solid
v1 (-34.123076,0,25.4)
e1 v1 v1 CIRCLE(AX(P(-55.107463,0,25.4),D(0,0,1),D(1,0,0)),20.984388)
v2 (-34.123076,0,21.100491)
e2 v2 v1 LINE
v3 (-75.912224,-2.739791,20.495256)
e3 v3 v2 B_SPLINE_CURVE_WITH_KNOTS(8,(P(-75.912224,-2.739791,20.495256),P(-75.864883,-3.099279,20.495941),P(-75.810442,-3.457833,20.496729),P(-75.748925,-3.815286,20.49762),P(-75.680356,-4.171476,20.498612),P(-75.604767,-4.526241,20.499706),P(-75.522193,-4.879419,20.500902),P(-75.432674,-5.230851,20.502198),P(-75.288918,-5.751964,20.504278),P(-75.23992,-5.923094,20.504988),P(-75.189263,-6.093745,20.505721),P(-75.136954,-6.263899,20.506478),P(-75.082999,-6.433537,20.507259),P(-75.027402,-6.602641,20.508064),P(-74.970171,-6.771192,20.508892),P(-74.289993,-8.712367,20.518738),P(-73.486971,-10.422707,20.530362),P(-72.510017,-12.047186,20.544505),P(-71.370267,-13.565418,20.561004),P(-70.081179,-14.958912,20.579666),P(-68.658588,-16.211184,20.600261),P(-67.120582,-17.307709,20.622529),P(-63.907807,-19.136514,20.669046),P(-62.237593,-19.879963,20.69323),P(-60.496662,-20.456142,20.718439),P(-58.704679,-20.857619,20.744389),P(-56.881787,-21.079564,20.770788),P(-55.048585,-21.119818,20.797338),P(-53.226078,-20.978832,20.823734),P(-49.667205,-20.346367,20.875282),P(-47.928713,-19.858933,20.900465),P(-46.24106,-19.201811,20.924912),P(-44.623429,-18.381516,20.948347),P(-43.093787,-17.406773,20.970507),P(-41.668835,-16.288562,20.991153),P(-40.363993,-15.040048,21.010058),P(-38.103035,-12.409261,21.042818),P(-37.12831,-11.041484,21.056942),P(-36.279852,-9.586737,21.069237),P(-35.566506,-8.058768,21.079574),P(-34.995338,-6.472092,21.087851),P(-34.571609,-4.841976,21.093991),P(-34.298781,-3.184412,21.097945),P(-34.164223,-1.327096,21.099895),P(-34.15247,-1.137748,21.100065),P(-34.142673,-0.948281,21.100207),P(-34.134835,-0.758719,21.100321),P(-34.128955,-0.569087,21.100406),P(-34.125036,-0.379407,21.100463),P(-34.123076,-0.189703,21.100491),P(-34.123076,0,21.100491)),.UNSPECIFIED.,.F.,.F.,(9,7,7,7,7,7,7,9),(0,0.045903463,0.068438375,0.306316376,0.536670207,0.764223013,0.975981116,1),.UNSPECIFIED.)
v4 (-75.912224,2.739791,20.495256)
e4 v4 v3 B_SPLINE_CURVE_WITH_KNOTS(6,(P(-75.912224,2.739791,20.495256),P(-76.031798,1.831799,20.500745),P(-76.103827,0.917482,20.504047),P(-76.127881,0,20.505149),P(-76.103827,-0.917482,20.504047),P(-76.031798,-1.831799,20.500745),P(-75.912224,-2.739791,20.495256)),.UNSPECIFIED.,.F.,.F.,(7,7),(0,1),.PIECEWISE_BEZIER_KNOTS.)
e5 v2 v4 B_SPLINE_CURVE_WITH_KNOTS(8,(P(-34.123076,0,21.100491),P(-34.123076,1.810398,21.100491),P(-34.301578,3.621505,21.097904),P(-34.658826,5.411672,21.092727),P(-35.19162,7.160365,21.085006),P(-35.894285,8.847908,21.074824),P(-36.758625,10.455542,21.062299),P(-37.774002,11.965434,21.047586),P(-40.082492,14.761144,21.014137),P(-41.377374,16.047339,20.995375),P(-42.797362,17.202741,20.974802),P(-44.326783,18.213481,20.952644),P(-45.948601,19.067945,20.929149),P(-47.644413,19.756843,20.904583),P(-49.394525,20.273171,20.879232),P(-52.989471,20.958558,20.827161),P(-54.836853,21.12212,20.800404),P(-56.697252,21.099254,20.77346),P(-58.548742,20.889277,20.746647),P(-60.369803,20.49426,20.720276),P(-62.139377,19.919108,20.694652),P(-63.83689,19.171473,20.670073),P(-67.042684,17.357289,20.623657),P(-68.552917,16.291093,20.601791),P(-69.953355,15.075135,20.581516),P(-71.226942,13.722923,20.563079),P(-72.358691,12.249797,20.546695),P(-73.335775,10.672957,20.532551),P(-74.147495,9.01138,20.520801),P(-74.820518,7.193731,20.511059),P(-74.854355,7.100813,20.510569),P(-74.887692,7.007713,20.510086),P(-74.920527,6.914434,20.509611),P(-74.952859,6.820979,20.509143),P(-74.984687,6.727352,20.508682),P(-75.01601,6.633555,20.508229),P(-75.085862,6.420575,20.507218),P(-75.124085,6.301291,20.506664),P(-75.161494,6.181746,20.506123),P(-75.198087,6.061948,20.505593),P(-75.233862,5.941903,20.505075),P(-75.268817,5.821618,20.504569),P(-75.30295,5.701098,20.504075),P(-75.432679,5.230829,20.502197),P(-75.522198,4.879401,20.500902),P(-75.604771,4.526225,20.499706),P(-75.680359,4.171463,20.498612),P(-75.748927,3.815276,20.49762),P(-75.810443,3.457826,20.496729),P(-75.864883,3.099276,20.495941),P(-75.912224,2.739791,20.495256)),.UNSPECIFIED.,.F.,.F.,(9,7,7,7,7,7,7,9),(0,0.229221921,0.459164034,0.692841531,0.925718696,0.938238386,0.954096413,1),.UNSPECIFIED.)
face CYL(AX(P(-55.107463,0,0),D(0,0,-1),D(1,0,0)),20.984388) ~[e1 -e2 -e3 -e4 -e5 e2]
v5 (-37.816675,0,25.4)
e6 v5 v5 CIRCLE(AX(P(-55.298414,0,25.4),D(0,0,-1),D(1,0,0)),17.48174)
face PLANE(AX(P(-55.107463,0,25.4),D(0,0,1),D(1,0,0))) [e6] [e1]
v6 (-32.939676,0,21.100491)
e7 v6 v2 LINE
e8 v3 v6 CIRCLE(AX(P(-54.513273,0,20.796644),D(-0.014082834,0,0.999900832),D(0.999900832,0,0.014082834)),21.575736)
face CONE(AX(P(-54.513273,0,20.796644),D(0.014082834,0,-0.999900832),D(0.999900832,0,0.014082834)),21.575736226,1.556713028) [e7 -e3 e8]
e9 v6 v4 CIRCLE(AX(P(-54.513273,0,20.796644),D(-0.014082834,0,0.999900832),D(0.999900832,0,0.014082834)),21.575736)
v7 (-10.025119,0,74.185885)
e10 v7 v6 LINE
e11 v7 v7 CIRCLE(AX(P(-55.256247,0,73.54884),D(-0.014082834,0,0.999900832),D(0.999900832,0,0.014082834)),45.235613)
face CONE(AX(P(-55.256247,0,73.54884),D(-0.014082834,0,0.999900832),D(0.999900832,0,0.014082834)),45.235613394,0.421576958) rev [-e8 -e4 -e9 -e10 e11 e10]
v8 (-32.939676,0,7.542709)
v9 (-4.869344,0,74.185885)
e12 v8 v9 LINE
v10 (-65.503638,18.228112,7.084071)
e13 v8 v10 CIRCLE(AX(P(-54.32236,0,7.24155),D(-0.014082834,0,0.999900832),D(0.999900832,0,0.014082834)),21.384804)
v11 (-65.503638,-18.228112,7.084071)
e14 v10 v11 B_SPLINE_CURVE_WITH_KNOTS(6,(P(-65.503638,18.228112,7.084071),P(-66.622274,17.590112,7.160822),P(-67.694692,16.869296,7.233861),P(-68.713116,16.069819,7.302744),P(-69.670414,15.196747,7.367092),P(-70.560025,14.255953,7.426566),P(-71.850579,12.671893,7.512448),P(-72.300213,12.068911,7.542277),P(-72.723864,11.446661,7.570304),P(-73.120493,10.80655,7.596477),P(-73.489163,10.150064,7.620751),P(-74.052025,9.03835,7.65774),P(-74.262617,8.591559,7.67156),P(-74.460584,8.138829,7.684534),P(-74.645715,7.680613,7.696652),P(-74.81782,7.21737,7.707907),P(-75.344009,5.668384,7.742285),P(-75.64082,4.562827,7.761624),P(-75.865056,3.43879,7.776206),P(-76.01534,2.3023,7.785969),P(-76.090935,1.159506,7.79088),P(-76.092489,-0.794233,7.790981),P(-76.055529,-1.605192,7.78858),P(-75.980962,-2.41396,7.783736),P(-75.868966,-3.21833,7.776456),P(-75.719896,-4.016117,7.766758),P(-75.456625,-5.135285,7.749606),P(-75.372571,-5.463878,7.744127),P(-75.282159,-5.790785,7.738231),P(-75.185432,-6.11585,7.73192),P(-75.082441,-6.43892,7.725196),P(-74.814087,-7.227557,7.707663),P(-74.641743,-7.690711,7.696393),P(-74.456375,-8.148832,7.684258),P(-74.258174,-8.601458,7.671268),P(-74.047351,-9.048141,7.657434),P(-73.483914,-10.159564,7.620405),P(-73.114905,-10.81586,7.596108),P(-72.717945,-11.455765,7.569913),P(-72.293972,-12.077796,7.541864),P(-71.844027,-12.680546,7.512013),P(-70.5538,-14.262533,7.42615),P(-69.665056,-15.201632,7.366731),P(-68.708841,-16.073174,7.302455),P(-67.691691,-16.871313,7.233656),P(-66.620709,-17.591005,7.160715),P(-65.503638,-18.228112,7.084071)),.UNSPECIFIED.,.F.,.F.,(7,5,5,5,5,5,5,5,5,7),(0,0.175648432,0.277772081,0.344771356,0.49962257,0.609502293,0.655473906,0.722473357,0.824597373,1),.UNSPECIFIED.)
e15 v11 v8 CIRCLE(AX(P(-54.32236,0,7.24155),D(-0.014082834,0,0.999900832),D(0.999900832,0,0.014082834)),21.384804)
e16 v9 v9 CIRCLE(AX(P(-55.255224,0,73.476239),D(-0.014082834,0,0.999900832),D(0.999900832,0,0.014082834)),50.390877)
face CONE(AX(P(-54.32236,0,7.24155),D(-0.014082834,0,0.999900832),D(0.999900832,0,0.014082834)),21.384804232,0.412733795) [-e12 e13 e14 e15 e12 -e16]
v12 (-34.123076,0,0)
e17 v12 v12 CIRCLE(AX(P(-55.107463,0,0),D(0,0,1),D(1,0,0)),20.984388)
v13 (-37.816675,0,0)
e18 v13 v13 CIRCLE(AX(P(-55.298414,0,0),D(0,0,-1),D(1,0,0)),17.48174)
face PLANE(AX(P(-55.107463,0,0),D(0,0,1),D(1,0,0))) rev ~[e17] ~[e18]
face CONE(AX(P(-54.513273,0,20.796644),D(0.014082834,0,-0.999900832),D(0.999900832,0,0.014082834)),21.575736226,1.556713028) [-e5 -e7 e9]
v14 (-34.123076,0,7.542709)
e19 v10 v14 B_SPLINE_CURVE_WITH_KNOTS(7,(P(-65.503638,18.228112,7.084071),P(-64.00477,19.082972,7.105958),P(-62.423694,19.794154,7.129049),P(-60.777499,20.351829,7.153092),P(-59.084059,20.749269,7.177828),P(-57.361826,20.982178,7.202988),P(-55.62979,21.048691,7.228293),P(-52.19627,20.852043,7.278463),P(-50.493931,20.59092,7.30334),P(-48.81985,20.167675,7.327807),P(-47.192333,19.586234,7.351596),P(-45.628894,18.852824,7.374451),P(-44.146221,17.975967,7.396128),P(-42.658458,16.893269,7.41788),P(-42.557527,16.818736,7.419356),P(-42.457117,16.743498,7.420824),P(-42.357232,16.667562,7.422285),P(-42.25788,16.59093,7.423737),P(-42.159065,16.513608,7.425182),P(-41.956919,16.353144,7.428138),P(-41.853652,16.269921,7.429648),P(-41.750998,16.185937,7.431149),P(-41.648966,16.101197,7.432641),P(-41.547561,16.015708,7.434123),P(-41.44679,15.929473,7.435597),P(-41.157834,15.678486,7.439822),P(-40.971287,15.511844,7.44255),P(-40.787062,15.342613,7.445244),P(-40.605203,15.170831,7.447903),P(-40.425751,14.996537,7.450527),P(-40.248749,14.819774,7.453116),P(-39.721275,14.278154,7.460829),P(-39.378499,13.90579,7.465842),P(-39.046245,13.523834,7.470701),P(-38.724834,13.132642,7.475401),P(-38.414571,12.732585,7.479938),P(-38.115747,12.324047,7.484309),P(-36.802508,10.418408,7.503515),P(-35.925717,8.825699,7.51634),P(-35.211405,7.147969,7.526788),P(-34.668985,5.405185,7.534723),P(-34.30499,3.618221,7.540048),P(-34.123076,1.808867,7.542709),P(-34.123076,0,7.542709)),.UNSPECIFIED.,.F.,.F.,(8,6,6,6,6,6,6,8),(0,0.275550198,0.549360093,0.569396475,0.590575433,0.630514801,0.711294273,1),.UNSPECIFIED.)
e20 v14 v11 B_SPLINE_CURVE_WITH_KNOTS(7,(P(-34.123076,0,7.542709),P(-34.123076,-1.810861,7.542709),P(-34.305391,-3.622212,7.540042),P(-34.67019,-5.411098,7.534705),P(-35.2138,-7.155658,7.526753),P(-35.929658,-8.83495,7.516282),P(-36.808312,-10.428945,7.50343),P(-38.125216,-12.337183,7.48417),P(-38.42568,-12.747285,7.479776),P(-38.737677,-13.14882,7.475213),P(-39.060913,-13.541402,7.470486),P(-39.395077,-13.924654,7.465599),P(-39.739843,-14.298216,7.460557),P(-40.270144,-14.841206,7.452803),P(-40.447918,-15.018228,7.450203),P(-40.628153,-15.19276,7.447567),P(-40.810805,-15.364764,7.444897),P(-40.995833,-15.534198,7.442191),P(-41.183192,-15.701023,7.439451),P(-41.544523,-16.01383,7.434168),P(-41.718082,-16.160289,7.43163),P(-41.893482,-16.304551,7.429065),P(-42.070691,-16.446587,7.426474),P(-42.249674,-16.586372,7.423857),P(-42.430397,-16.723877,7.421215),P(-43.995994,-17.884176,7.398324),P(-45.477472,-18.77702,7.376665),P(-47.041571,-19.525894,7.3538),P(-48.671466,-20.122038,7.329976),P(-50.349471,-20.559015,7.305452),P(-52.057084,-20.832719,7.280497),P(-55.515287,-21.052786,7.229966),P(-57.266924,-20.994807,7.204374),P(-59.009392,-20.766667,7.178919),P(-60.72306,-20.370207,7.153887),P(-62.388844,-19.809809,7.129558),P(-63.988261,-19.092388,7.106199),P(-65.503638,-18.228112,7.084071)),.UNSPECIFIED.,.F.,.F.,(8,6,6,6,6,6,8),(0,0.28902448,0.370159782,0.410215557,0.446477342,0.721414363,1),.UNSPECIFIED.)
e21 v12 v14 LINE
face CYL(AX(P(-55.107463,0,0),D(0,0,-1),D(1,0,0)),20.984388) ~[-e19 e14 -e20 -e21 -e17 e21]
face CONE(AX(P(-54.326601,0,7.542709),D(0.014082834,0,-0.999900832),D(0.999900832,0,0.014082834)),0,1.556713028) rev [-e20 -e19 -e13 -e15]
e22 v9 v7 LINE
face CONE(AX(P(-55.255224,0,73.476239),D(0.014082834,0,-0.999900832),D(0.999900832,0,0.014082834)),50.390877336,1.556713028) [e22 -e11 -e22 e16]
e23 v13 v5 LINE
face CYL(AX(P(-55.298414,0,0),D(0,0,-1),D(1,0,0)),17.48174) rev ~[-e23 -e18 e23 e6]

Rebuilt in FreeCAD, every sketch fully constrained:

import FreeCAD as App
import Part
import Sketcher

V = App.Vector
Q = App.Units.Quantity


def add_polygon(sketch, points):
    """Adds a closed chain of lines whose ends are joined by coincident constraints."""
    first, n = sketch.GeometryCount, len(points)
    for a, b in zip(points, points[1:] + points[:1]):
        sketch.addGeometry(Part.LineSegment(App.Vector(*a, 0), App.Vector(*b, 0)), False)
    for i in range(n):
        sketch.addConstraint(Sketcher.Constraint("Coincident", first + i, 2, first + (i + 1) % n, 1))

doc = App.newDocument("Part")
body = doc.addObject("PartDesign::Body", "Body")

# Sketch on XZ plane
sketch1 = body.newObject("Sketcher::SketchObject", "Sketch")
sketch1.AttachmentSupport = (doc.getObject("XZ_Plane"), [""])
sketch1.MapMode = "FlatFace"
add_polygon(sketch1, [(-33, 21), (-55, 21), (-54, 8), (-33, 8), (-5, 74), (-10, 74)])  # lines 0-5
sketch1.addGeometry(Part.LineSegment(V(-54, 7, 0), V(-55, 74, 0)), True)  # axis
sketch1.addConstraint([
    Sketcher.Constraint("Horizontal", 0),
    Sketcher.Constraint("Horizontal", 2),
    Sketcher.Constraint("Horizontal", 4),
    Sketcher.Constraint("Parallel", 1, 6),
    Sketcher.Constraint("Vertical", 2, 2, 5, 2),
    Sketcher.Constraint("Distance", 3, Q("72.313598 mm")),
    Sketcher.Constraint("DistanceX", 1, 2, -1, 1, Q("54.326601 mm")),
    Sketcher.Constraint("Distance", 5, Q("57.819858 mm")),
    Sketcher.Constraint("DistanceX", 0, 2, 0, 1, Q("21.577876 mm")),
    Sketcher.Constraint("DistanceX", 2, 1, 2, 2, Q("21.386925 mm")),
    Sketcher.Constraint("DistanceX", 4, 2, 4, 1, Q("5.155775 mm")),
    Sketcher.Constraint("DistanceY", -1, 1, 0, 2, Q("21.100491 mm")),
    Sketcher.Constraint("DistanceY", -1, 1, 1, 2, Q("7.542709 mm")),
    Sketcher.Constraint("DistanceX", 6, 1, -1, 1, Q("54.32236 mm")),
    Sketcher.Constraint("DistanceY", -1, 1, 6, 1, Q("7.24155 mm")),
    Sketcher.Constraint("DistanceY", -1, 1, 6, 2, Q("73.54884 mm")),
])
revolution = body.newObject("PartDesign::Revolution", "Revolution")
revolution.Profile = sketch1
revolution.ReferenceAxis = (sketch1, ["Axis0"])
revolution.Angle = 360

# Sketch on XY plane
sketch2 = body.newObject("Sketcher::SketchObject", "Sketch001")
sketch2.AttachmentSupport = (doc.getObject("XY_Plane"), [""])
sketch2.MapMode = "FlatFace"
sketch2.addGeometry(Part.Circle(V(-55, 0, 0), V(0, 0, 1), 21), False)
sketch2.addConstraint([
    Sketcher.Constraint("PointOnObject", 0, 3, -1),
    Sketcher.Constraint("Diameter", 0, Q("41.968775 mm")),
    Sketcher.Constraint("DistanceX", 0, 3, -1, 1, Q("55.107463 mm")),
])
pad1 = body.newObject("PartDesign::Pad", "Pad")
pad1.Profile = sketch2
pad1.Length = Q("1 in")

# Sketch on XY plane
sketch3 = body.newObject("Sketcher::SketchObject", "Sketch002")
sketch3.AttachmentSupport = (doc.getObject("XY_Plane"), [""])
sketch3.MapMode = "FlatFace"
sketch3.addGeometry(Part.Circle(V(-55, 0, 0), V(0, 0, 1), 17), False)
sketch3.addConstraint([
    Sketcher.Constraint("PointOnObject", 0, 3, -1),
    Sketcher.Constraint("Diameter", 0, Q("34.963479 mm")),
    Sketcher.Constraint("DistanceX", 0, 3, -1, 1, Q("55.298414 mm")),
])
pocket1 = body.newObject("PartDesign::Pocket", "Pocket")
pocket1.Profile = sketch3
pocket1.Length = Q("1 in")
pocket1.Reversed = True

doc.recompute()
